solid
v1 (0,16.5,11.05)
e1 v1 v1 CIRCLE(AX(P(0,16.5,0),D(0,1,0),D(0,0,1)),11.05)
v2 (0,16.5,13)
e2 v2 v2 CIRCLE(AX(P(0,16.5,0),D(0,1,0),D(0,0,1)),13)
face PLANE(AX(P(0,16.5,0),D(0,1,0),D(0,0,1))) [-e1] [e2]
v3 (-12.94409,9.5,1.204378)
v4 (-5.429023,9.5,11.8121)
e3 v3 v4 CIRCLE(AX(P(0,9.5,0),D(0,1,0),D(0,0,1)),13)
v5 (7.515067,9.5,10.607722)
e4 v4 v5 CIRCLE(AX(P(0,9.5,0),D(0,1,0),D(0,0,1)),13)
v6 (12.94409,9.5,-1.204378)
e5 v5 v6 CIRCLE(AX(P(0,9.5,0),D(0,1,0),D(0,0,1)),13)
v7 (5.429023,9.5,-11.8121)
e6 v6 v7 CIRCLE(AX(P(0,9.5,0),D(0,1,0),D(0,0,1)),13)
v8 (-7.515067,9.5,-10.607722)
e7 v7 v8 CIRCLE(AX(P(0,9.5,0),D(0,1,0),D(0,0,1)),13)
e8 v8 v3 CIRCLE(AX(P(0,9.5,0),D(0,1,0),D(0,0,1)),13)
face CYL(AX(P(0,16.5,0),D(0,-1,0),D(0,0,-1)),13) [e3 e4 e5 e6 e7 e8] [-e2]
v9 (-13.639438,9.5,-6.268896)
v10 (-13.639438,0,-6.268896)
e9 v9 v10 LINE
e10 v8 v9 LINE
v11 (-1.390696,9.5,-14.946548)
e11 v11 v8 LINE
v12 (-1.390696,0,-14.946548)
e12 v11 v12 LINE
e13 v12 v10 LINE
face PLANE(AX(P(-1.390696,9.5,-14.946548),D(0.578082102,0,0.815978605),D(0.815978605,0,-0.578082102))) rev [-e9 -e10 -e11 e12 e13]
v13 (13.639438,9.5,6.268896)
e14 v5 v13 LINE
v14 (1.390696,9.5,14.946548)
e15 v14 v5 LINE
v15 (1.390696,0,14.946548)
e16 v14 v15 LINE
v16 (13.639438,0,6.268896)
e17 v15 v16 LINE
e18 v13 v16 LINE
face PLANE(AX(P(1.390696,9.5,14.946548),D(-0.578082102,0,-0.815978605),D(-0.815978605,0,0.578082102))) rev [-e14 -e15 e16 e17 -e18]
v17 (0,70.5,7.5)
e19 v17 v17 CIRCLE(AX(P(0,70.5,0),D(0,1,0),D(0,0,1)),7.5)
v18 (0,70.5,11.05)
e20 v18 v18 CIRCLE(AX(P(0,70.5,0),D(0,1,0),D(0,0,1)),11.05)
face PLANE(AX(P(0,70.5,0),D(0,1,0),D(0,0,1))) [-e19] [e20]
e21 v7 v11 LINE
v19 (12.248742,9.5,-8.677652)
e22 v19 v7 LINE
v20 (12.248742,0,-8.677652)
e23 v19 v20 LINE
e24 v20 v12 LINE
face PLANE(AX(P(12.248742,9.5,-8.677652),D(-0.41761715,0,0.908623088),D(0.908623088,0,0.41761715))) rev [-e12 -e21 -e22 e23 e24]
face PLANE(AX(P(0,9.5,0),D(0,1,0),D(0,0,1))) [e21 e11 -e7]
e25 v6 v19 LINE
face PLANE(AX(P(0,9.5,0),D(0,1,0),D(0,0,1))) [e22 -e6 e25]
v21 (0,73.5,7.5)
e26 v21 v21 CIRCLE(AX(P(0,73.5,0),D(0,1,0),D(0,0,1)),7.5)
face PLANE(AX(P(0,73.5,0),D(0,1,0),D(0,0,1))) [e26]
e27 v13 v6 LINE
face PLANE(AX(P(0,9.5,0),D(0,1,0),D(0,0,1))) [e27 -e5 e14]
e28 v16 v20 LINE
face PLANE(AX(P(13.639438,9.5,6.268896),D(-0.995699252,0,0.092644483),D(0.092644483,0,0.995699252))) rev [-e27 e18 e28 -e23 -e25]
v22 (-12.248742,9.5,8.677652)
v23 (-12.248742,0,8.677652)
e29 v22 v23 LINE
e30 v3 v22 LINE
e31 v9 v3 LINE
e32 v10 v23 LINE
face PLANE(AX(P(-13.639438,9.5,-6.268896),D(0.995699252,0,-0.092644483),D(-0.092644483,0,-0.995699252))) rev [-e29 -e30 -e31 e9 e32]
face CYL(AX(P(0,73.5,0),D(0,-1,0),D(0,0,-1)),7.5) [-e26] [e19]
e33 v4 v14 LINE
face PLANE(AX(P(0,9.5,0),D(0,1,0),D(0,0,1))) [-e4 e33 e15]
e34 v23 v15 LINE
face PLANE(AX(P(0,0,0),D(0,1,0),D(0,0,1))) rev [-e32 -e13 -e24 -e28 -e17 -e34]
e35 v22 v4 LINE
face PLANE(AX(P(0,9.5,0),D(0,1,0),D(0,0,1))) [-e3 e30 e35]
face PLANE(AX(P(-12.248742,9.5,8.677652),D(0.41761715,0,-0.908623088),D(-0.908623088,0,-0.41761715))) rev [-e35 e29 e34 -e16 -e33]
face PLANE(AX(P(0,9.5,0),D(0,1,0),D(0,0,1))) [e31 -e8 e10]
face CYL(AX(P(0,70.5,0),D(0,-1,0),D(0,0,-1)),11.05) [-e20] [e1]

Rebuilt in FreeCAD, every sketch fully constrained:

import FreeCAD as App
import Part
import Sketcher

V = App.Vector
Q = App.Units.Quantity

doc = App.newDocument("Part")
body = doc.addObject("PartDesign::Body", "Body")

sketch1 = doc.addObject("Sketcher::SketchObject", "Sketch")
body.addObject(sketch1)
sketch1.AttachmentSupport = (doc.XZ_Plane, [""])
sketch1.MapMode = "FlatFace"
sketch1.addGeometry([
    Part.LineSegment(V(14, 6, 0), V(12, -9, 0)),
    Part.LineSegment(V(12, -9, 0), V(-1, -15, 0)),
    Part.LineSegment(V(-1, -15, 0), V(-14, -6, 0)),
    Part.LineSegment(V(-14, -6, 0), V(-12, 9, 0)),
    Part.LineSegment(V(-12, 9, 0), V(1, 15, 0)),
    Part.LineSegment(V(1, 15, 0), V(14, 6, 0)),
], False)
sketch1.addConstraint([
    Sketcher.Constraint("Coincident", 0, 2, 1, 1),
    Sketcher.Constraint("Coincident", 1, 2, 2, 1),
    Sketcher.Constraint("Coincident", 2, 2, 3, 1),
    Sketcher.Constraint("Coincident", 3, 2, 4, 1),
    Sketcher.Constraint("Coincident", 4, 2, 5, 1),
    Sketcher.Constraint("Coincident", 5, 2, 0, 1),
    Sketcher.Constraint("Symmetric", 0, 2, 3, 2, -1, 1),
    Sketcher.Constraint("Symmetric", 1, 2, 4, 2, -1, 1),
    Sketcher.Constraint("Symmetric", 2, 2, 5, 2, -1, 1),
    Sketcher.Constraint("Equal", 0, 1),
    Sketcher.Constraint("Equal", 1, 2),
    Sketcher.Constraint("DistanceY", 1, 2, 3, 2, Q("23.6242 mm")),
    Sketcher.Constraint("DistanceY", 1, 2, -1, 1, Q("14.946548 mm")),
    Sketcher.Constraint("DistanceX", 2, 2, -1, 1, Q("13.639438 mm")),
    Sketcher.Constraint("DistanceX", 1, 2, 0, 2, Q("13.639438 mm")),
])
pad1 = doc.addObject("PartDesign::Pad", "Pad")
body.addObject(pad1)
pad1.Profile = sketch1
pad1.Length = 9.5
pad1.Reversed = True

sketch2 = doc.addObject("Sketcher::SketchObject", "Sketch001")
body.addObject(sketch2)
sketch2.AttachmentSupport = (doc.XZ_Plane, [""])
sketch2.MapMode = "FlatFace"
sketch2.AttachmentOffset = App.Placement(V(0, 0, -9.5), App.Rotation())
sketch2.addGeometry(Part.Circle(V(0, 0, 0), V(0, 0, 1), 13), False)
sketch2.addConstraint([
    Sketcher.Constraint("Coincident", 0, 3, -1, 1),
    Sketcher.Constraint("Diameter", 0, Q("26 mm")),
])
pad2 = doc.addObject("PartDesign::Pad", "Pad001")
body.addObject(pad2)
pad2.Profile = sketch2
pad2.Length = 7
pad2.Reversed = True

sketch3 = doc.addObject("Sketcher::SketchObject", "Sketch002")
body.addObject(sketch3)
sketch3.AttachmentSupport = (doc.XZ_Plane, [""])
sketch3.MapMode = "FlatFace"
sketch3.AttachmentOffset = App.Placement(V(0, 0, -16.5), App.Rotation())
sketch3.addGeometry(Part.Circle(V(0, 0, 0), V(0, 0, 1), 11), False)
sketch3.addConstraint([
    Sketcher.Constraint("Coincident", 0, 3, -1, 1),
    Sketcher.Constraint("Diameter", 0, Q("22.1 mm")),
])
pad3 = doc.addObject("PartDesign::Pad", "Pad002")
body.addObject(pad3)
pad3.Profile = sketch3
pad3.Length = 54
pad3.Reversed = True

sketch4 = doc.addObject("Sketcher::SketchObject", "Sketch003")
body.addObject(sketch4)
sketch4.AttachmentSupport = (doc.XZ_Plane, [""])
sketch4.MapMode = "FlatFace"
sketch4.AttachmentOffset = App.Placement(V(0, 0, -70.5), App.Rotation())
sketch4.addGeometry(Part.Circle(V(0, 0, 0), V(0, 0, 1), 8), False)
sketch4.addConstraint([
    Sketcher.Constraint("Coincident", 0, 3, -1, 1),
    Sketcher.Constraint("Diameter", 0, Q("15 mm")),
])
pad4 = doc.addObject("PartDesign::Pad", "Pad003")
body.addObject(pad4)
pad4.Profile = sketch4
pad4.Length = 3
pad4.Reversed = True

doc.recompute()
